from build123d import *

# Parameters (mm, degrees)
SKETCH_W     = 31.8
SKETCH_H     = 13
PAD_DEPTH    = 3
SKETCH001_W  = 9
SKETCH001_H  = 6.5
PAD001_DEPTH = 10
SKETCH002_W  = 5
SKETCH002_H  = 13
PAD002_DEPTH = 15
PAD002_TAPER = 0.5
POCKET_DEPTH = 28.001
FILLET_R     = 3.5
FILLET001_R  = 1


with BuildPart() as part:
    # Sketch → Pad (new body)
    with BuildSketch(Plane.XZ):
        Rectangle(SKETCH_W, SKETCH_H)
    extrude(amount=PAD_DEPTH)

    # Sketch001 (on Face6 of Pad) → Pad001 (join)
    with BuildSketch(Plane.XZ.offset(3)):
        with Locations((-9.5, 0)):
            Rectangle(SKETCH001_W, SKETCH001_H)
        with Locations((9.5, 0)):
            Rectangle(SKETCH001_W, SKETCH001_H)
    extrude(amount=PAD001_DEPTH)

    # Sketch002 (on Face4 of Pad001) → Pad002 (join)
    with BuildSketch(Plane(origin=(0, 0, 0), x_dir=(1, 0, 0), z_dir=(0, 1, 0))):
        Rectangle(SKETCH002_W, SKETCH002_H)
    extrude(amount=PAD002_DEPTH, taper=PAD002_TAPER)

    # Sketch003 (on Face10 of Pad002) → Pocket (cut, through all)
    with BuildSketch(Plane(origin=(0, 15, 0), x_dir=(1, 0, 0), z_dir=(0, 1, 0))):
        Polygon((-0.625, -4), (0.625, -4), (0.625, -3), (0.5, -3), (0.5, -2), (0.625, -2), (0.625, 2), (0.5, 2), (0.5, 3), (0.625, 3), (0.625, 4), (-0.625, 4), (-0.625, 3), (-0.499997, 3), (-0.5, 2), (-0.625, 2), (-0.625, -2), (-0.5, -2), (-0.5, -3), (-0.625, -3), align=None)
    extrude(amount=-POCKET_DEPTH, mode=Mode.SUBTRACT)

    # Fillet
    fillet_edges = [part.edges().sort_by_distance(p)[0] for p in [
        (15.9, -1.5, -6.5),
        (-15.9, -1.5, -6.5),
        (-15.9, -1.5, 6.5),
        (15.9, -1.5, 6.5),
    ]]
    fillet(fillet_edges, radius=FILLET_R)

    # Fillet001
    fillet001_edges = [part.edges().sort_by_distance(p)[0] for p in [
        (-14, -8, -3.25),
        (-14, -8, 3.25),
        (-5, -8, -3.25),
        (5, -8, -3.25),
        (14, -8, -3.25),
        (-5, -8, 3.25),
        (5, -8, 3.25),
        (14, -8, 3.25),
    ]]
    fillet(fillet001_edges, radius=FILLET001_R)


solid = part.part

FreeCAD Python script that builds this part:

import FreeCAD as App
import Part
import Sketcher
from FreeCAD import Vector


def edges_at(feature, points):
    """Names of the edges that pass closest to the given points."""
    edges = feature.Shape.Edges
    near = lambda p: min(range(len(edges)), key=lambda i: edges[i].distToShape(Part.Vertex(*p))[0])
    return sorted({f"Edge{near(p) + 1}" for p in points})


def add_polygon(sketch, points):
    """Adds a closed chain of lines whose ends are joined by coincident constraints."""
    first, n = sketch.GeometryCount, len(points)
    for a, b in zip(points, points[1:] + points[:1]):
        sketch.addGeometry(Part.LineSegment(App.Vector(*a, 0), App.Vector(*b, 0)), False)
    for i in range(n):
        sketch.addConstraint(Sketcher.Constraint("Coincident", first + i, 2, first + (i + 1) % n, 1))

doc = App.newDocument("Part")
body = doc.addObject("PartDesign::Body", "Body")

# Sketch on XZ plane
sketch1 = doc.addObject("Sketcher::SketchObject", "Sketch")
body.addObject(sketch1)
sketch1.AttachmentSupport = (doc.XZ_Plane, [""])
sketch1.MapMode = "FlatFace"
add_polygon(sketch1, [(-16, 6), (-16, -6), (16, -6), (16, 6)])  # lines 0-3
sketch1.addConstraint([
    Sketcher.Constraint("Vertical", 0),
    Sketcher.Constraint("Horizontal", 1),
    Sketcher.Constraint("Vertical", 2),
    Sketcher.Constraint("Horizontal", 3),
    Sketcher.Constraint("Symmetric", 0, 2, 2, 2, -1, 1),
    Sketcher.Constraint("DistanceY", 0, 2, 0, 1, 13.0),
    Sketcher.Constraint("DistanceX", 1, 1, 1, 2, 31.8),
])
pad1 = doc.addObject("PartDesign::Pad", "Pad")
body.addObject(pad1)
pad1.Profile = sketch1
pad1.Length = 3

# Sketch on XZ plane
sketch2 = doc.addObject("Sketcher::SketchObject", "Sketch001")
body.addObject(sketch2)
sketch2.AttachmentSupport = (doc.XZ_Plane, [""])
sketch2.MapMode = "FlatFace"
sketch2.AttachmentOffset = App.Placement(Vector(0, 0, 3), App.Rotation())
add_polygon(sketch2, [(-14, 3), (-14, -3), (-5, -3), (-5, 3)])  # lines 0-3
add_polygon(sketch2, [(5, 3), (5, -3), (14, -3), (14, 3)])  # lines 4-7
sketch2.addConstraint([
    Sketcher.Constraint("Vertical", 0),
    Sketcher.Constraint("Horizontal", 1),
    Sketcher.Constraint("Vertical", 2),
    Sketcher.Constraint("Horizontal", 3),
    Sketcher.Constraint("Vertical", 4),
    Sketcher.Constraint("Horizontal", 5),
    Sketcher.Constraint("Vertical", 6),
    Sketcher.Constraint("Horizontal", 7),
    Sketcher.Constraint("Symmetric", 2, 2, 4, 2, -1, 1),
    Sketcher.Constraint("Symmetric", 0, 2, 6, 2, -1, 1),
    Sketcher.Constraint("Horizontal", 1, 2, 4, 2),
    Sketcher.Constraint("DistanceX", 1, 1, 1, 2, 9.0),
    Sketcher.Constraint("DistanceY", 0, 2, 0, 1, 6.5),
    Sketcher.Constraint("DistanceX", 0, 2, -1, 1, 14.0),
])
pad2 = doc.addObject("PartDesign::Pad", "Pad001")
body.addObject(pad2)
pad2.Profile = sketch2
pad2.Length = 10

# Sketch on XZ plane
sketch3 = doc.addObject("Sketcher::SketchObject", "Sketch002")
body.addObject(sketch3)
sketch3.AttachmentSupport = (doc.XZ_Plane, [""])
sketch3.MapMode = "FlatFace"
add_polygon(sketch3, [(-2, -6), (-2, 6), (2, 6), (2, -6)])  # lines 0-3
sketch3.addConstraint([
    Sketcher.Constraint("Vertical", 0),
    Sketcher.Constraint("Horizontal", 1),
    Sketcher.Constraint("Vertical", 2),
    Sketcher.Constraint("Horizontal", 3),
    Sketcher.Constraint("Symmetric", 0, 2, 2, 2, -1, 1),
    Sketcher.Constraint("DistanceX", 1, 1, 1, 2, 5.0),
    Sketcher.Constraint("DistanceY", 0, 1, 0, 2, 13.0),
])
pad3 = doc.addObject("PartDesign::Pad", "Pad002")
body.addObject(pad3)
pad3.Profile = sketch3
pad3.Length = 15
pad3.Reversed = True
pad3.TaperAngle = -0.5

# Sketch on XZ plane
sketch4 = doc.addObject("Sketcher::SketchObject", "Sketch003")
body.addObject(sketch4)
sketch4.AttachmentSupport = (doc.XZ_Plane, [""])
sketch4.MapMode = "FlatFace"
sketch4.AttachmentOffset = App.Placement(Vector(0, 0, -15), App.Rotation())
add_polygon(sketch4, [(-0.62, 4), (0.62, 4), (0.62, 3), (0.5, 3), (0.5, 2), (0.62, 2), (0.62, -2), (0.5, -2), (0.5, -3), (0.62, -3), (0.62, -4), (-0.62, -4), (-0.62, -3), (-0.5, -3), (-0.5, -2), (-0.62, -2), (-0.62, 2), (-0.5, 2), (-0.5, 3), (-0.62, 3)])  # lines 0-19
sketch4.addConstraint([
    Sketcher.Constraint("Horizontal", 0),
    Sketcher.Constraint("Vertical", 1),
    Sketcher.Constraint("Horizontal", 2),
    Sketcher.Constraint("Vertical", 3),
    Sketcher.Constraint("Horizontal", 4),
    Sketcher.Constraint("Vertical", 5),
    Sketcher.Constraint("Horizontal", 6),
    Sketcher.Constraint("Vertical", 7),
    Sketcher.Constraint("Horizontal", 8),
    Sketcher.Constraint("Vertical", 9),
    Sketcher.Constraint("Horizontal", 10),
    Sketcher.Constraint("Vertical", 11),
    Sketcher.Constraint("Horizontal", 12),
    Sketcher.Constraint("Horizontal", 14),
    Sketcher.Constraint("Vertical", 15),
    Sketcher.Constraint("Horizontal", 16),
    Sketcher.Constraint("Vertical", 17),
    Sketcher.Constraint("Horizontal", 18),
    Sketcher.Constraint("Vertical", 19),
    Sketcher.Constraint("Symmetric", 0, 2, 10, 2, -1, 1),
    Sketcher.Constraint("Symmetric", 2, 2, 12, 2, -1, 1),
    Sketcher.Constraint("Symmetric", 3, 2, 13, 2, -1, 1),
    Sketcher.Constraint("Symmetric", 5, 2, 15, 2, -1, 1),
    Sketcher.Constraint("Symmetric", 7, 2, 17, 2, -1, 1),
    Sketcher.Constraint("Symmetric", 8, 2, 11, 2, -2),
    Sketcher.Constraint("Symmetric", 6, 2, 13, 2, -2),
    Sketcher.Constraint("Vertical", 1, 2, 4, 2),
    Sketcher.Constraint("Vertical", 15, 2, 18, 2),
    Sketcher.Constraint("Equal", 1, 3),
    Sketcher.Constraint("DistanceY", 1, 2, 1, 1, 1.0),
    Sketcher.Constraint("DistanceY", 5, 2, 5, 1, 4.0),
    Sketcher.Constraint("DistanceX", 13, 2, 6, 2, 1.0),
    Sketcher.Constraint("DistanceX", 0, 1, 0, 2, 1.25),
])
pocket1 = doc.addObject("PartDesign::Pocket", "Pocket")
body.addObject(pocket1)
pocket1.Profile = sketch4
pocket1.Type = "ThroughAll"
pocket1.Reversed = True
doc.recompute()

fillet = doc.addObject("PartDesign::Fillet", "Fillet")
body.addObject(fillet)
fillet.Base = (pocket1, edges_at(pocket1, [
    (15.9, -1.5, -6.5),
    (-15.9, -1.5, -6.5),
    (-15.9, -1.5, 6.5),
    (15.9, -1.5, 6.5),
]))
fillet.Radius = 3.5
doc.recompute()

fillet2 = doc.addObject("PartDesign::Fillet", "Fillet001")
body.addObject(fillet2)
fillet2.Base = (fillet, edges_at(fillet, [
    (-14, -8, -3.25),
    (-14, -8, 3.25),
    (-5, -8, -3.25),
    (5, -8, -3.25),
    (14, -8, -3.25),
    (-5, -8, 3.25),
    (5, -8, 3.25),
    (14, -8, 3.25),
]))
fillet2.Radius = 1

doc.recompute()
